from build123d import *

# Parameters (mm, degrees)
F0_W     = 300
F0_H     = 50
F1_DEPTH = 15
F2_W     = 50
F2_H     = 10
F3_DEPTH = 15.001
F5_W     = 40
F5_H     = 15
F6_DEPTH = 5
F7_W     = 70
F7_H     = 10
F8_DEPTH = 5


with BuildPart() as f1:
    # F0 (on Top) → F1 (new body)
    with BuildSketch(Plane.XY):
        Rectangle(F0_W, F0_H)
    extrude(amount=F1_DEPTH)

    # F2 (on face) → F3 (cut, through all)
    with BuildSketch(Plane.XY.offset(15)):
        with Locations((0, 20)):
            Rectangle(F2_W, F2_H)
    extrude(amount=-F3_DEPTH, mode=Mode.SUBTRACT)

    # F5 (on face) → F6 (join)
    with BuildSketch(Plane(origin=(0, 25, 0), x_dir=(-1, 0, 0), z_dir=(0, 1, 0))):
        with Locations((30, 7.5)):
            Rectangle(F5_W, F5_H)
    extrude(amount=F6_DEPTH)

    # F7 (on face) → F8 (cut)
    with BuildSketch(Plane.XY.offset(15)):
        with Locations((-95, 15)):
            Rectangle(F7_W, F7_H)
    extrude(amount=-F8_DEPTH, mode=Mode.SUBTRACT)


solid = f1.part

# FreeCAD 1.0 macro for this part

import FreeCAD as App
import Part
import Sketcher
from FreeCAD import Vector
Q = App.Units.Quantity

doc = App.newDocument("Part")
body = doc.addObject("PartDesign::Body", "Body")

# Sketch on XY plane
sketch1 = body.newObject("Sketcher::SketchObject", "Sketch")
sketch1.AttachmentSupport = (doc.getObject("XY_Plane"), [""])
sketch1.MapMode = "FlatFace"
sketch1.addGeometry(Part.LineSegment(Vector(-150, 25, 0), Vector(-150, -25, 0)), False)
sketch1.addGeometry(Part.LineSegment(Vector(-150, -25, 0), Vector(150, -25, 0)), False)
sketch1.addGeometry(Part.LineSegment(Vector(150, -25, 0), Vector(150, 25, 0)), False)
sketch1.addGeometry(Part.LineSegment(Vector(150, 25, 0), Vector(-150, 25, 0)), False)
sketch1.addConstraint(Sketcher.Constraint("Coincident", 0, 2, 1, 1))
sketch1.addConstraint(Sketcher.Constraint("Coincident", 1, 2, 2, 1))
sketch1.addConstraint(Sketcher.Constraint("Coincident", 2, 2, 3, 1))
sketch1.addConstraint(Sketcher.Constraint("Coincident", 3, 2, 0, 1))
sketch1.addConstraint(Sketcher.Constraint("Vertical", 0))
sketch1.addConstraint(Sketcher.Constraint("Horizontal", 1))
sketch1.addConstraint(Sketcher.Constraint("Vertical", 2))
sketch1.addConstraint(Sketcher.Constraint("Horizontal", 3))
sketch1.addConstraint(Sketcher.Constraint("Symmetric", 0, 2, 2, 2, -1, 1))
sketch1.addConstraint(Sketcher.Constraint("DistanceX", 1, 1, 1, 2, Q("300 mm")))
sketch1.addConstraint(Sketcher.Constraint("DistanceY", 0, 2, 0, 1, Q("50 mm")))
pad1 = body.newObject("PartDesign::Pad", "Pad")
pad1.Profile = sketch1
pad1.Length = 15

# Sketch on XY plane
sketch2 = body.newObject("Sketcher::SketchObject", "Sketch001")
sketch2.AttachmentSupport = (doc.getObject("XY_Plane"), [""])
sketch2.MapMode = "FlatFace"
sketch2.AttachmentOffset = App.Placement(Vector(0, 0, 15), App.Rotation())
sketch2.addGeometry(Part.LineSegment(Vector(-25, 25, 0), Vector(-25, 15, 0)), False)
sketch2.addGeometry(Part.LineSegment(Vector(-25, 15, 0), Vector(25, 15, 0)), False)
sketch2.addGeometry(Part.LineSegment(Vector(25, 15, 0), Vector(25, 25, 0)), False)
sketch2.addGeometry(Part.LineSegment(Vector(25, 25, 0), Vector(-25, 25, 0)), False)
sketch2.addConstraint(Sketcher.Constraint("Coincident", 0, 2, 1, 1))
sketch2.addConstraint(Sketcher.Constraint("Coincident", 1, 2, 2, 1))
sketch2.addConstraint(Sketcher.Constraint("Coincident", 2, 2, 3, 1))
sketch2.addConstraint(Sketcher.Constraint("Coincident", 3, 2, 0, 1))
sketch2.addConstraint(Sketcher.Constraint("Vertical", 0))
sketch2.addConstraint(Sketcher.Constraint("Horizontal", 1))
sketch2.addConstraint(Sketcher.Constraint("Vertical", 2))
sketch2.addConstraint(Sketcher.Constraint("Horizontal", 3))
sketch2.addConstraint(Sketcher.Constraint("DistanceX", 1, 1, 1, 2, Q("50 mm")))
sketch2.addConstraint(Sketcher.Constraint("DistanceY", 0, 2, 0, 1, Q("10 mm")))
sketch2.addConstraint(Sketcher.Constraint("DistanceX", 0, 2, -1, 1, Q("25 mm")))
sketch2.addConstraint(Sketcher.Constraint("DistanceY", -1, 1, 0, 2, Q("15 mm")))
pocket1 = body.newObject("PartDesign::Pocket", "Pocket")
pocket1.Profile = sketch2
pocket1.Type = "ThroughAll"

# Sketch on XZ plane
sketch3 = body.newObject("Sketcher::SketchObject", "Sketch002")
sketch3.AttachmentSupport = (doc.getObject("XZ_Plane"), [""])
sketch3.MapMode = "FlatFace"
sketch3.AttachmentOffset = App.Placement(Vector(0, 0, -25), App.Rotation())
sketch3.addGeometry(Part.LineSegment(Vector(-10, 15, 0), Vector(-10, 0, 0)), False)
sketch3.addGeometry(Part.LineSegment(Vector(-10, 0, 0), Vector(-50, 0, 0)), False)
sketch3.addGeometry(Part.LineSegment(Vector(-50, 0, 0), Vector(-50, 15, 0)), False)
sketch3.addGeometry(Part.LineSegment(Vector(-50, 15, 0), Vector(-10, 15, 0)), False)
sketch3.addConstraint(Sketcher.Constraint("Coincident", 0, 2, 1, 1))
sketch3.addConstraint(Sketcher.Constraint("Coincident", 1, 2, 2, 1))
sketch3.addConstraint(Sketcher.Constraint("Coincident", 2, 2, 3, 1))
sketch3.addConstraint(Sketcher.Constraint("Coincident", 3, 2, 0, 1))
sketch3.addConstraint(Sketcher.Constraint("Vertical", 0))
sketch3.addConstraint(Sketcher.Constraint("Horizontal", 1))
sketch3.addConstraint(Sketcher.Constraint("Vertical", 2))
sketch3.addConstraint(Sketcher.Constraint("Horizontal", 3))
sketch3.addConstraint(Sketcher.Constraint("PointOnObject", 0, 2, -1))
sketch3.addConstraint(Sketcher.Constraint("DistanceX", 1, 2, 1, 1, Q("40 mm")))
sketch3.addConstraint(Sketcher.Constraint("DistanceY", 0, 2, 0, 1, Q("15 mm")))
sketch3.addConstraint(Sketcher.Constraint("DistanceX", 0, 2, -1, 1, Q("10 mm")))
pad2 = body.newObject("PartDesign::Pad", "Pad001")
pad2.Profile = sketch3
pad2.Length = 5
pad2.Reversed = True

# Sketch on XY plane
sketch4 = body.newObject("Sketcher::SketchObject", "Sketch003")
sketch4.AttachmentSupport = (doc.getObject("XY_Plane"), [""])
sketch4.MapMode = "FlatFace"
sketch4.AttachmentOffset = App.Placement(Vector(0, 0, 15), App.Rotation())
sketch4.addGeometry(Part.LineSegment(Vector(-130, 20, 0), Vector(-130, 10, 0)), False)
sketch4.addGeometry(Part.LineSegment(Vector(-130, 10, 0), Vector(-60, 10, 0)), False)
sketch4.addGeometry(Part.LineSegment(Vector(-60, 10, 0), Vector(-60, 20, 0)), False)
sketch4.addGeometry(Part.LineSegment(Vector(-60, 20, 0), Vector(-130, 20, 0)), False)
sketch4.addConstraint(Sketcher.Constraint("Coincident", 0, 2, 1, 1))
sketch4.addConstraint(Sketcher.Constraint("Coincident", 1, 2, 2, 1))
sketch4.addConstraint(Sketcher.Constraint("Coincident", 2, 2, 3, 1))
sketch4.addConstraint(Sketcher.Constraint("Coincident", 3, 2, 0, 1))
sketch4.addConstraint(Sketcher.Constraint("Vertical", 0))
sketch4.addConstraint(Sketcher.Constraint("Horizontal", 1))
sketch4.addConstraint(Sketcher.Constraint("Vertical", 2))
sketch4.addConstraint(Sketcher.Constraint("Horizontal", 3))
sketch4.addConstraint(Sketcher.Constraint("DistanceX", 1, 1, 1, 2, Q("70 mm")))
sketch4.addConstraint(Sketcher.Constraint("DistanceY", 0, 2, 0, 1, Q("10 mm")))
sketch4.addConstraint(Sketcher.Constraint("DistanceX", 0, 2, -1, 1, Q("130 mm")))
sketch4.addConstraint(Sketcher.Constraint("DistanceY", -1, 1, 0, 2, Q("10 mm")))
pocket2 = body.newObject("PartDesign::Pocket", "Pocket001")
pocket2.Profile = sketch4
pocket2.Length = 5

doc.recompute()
